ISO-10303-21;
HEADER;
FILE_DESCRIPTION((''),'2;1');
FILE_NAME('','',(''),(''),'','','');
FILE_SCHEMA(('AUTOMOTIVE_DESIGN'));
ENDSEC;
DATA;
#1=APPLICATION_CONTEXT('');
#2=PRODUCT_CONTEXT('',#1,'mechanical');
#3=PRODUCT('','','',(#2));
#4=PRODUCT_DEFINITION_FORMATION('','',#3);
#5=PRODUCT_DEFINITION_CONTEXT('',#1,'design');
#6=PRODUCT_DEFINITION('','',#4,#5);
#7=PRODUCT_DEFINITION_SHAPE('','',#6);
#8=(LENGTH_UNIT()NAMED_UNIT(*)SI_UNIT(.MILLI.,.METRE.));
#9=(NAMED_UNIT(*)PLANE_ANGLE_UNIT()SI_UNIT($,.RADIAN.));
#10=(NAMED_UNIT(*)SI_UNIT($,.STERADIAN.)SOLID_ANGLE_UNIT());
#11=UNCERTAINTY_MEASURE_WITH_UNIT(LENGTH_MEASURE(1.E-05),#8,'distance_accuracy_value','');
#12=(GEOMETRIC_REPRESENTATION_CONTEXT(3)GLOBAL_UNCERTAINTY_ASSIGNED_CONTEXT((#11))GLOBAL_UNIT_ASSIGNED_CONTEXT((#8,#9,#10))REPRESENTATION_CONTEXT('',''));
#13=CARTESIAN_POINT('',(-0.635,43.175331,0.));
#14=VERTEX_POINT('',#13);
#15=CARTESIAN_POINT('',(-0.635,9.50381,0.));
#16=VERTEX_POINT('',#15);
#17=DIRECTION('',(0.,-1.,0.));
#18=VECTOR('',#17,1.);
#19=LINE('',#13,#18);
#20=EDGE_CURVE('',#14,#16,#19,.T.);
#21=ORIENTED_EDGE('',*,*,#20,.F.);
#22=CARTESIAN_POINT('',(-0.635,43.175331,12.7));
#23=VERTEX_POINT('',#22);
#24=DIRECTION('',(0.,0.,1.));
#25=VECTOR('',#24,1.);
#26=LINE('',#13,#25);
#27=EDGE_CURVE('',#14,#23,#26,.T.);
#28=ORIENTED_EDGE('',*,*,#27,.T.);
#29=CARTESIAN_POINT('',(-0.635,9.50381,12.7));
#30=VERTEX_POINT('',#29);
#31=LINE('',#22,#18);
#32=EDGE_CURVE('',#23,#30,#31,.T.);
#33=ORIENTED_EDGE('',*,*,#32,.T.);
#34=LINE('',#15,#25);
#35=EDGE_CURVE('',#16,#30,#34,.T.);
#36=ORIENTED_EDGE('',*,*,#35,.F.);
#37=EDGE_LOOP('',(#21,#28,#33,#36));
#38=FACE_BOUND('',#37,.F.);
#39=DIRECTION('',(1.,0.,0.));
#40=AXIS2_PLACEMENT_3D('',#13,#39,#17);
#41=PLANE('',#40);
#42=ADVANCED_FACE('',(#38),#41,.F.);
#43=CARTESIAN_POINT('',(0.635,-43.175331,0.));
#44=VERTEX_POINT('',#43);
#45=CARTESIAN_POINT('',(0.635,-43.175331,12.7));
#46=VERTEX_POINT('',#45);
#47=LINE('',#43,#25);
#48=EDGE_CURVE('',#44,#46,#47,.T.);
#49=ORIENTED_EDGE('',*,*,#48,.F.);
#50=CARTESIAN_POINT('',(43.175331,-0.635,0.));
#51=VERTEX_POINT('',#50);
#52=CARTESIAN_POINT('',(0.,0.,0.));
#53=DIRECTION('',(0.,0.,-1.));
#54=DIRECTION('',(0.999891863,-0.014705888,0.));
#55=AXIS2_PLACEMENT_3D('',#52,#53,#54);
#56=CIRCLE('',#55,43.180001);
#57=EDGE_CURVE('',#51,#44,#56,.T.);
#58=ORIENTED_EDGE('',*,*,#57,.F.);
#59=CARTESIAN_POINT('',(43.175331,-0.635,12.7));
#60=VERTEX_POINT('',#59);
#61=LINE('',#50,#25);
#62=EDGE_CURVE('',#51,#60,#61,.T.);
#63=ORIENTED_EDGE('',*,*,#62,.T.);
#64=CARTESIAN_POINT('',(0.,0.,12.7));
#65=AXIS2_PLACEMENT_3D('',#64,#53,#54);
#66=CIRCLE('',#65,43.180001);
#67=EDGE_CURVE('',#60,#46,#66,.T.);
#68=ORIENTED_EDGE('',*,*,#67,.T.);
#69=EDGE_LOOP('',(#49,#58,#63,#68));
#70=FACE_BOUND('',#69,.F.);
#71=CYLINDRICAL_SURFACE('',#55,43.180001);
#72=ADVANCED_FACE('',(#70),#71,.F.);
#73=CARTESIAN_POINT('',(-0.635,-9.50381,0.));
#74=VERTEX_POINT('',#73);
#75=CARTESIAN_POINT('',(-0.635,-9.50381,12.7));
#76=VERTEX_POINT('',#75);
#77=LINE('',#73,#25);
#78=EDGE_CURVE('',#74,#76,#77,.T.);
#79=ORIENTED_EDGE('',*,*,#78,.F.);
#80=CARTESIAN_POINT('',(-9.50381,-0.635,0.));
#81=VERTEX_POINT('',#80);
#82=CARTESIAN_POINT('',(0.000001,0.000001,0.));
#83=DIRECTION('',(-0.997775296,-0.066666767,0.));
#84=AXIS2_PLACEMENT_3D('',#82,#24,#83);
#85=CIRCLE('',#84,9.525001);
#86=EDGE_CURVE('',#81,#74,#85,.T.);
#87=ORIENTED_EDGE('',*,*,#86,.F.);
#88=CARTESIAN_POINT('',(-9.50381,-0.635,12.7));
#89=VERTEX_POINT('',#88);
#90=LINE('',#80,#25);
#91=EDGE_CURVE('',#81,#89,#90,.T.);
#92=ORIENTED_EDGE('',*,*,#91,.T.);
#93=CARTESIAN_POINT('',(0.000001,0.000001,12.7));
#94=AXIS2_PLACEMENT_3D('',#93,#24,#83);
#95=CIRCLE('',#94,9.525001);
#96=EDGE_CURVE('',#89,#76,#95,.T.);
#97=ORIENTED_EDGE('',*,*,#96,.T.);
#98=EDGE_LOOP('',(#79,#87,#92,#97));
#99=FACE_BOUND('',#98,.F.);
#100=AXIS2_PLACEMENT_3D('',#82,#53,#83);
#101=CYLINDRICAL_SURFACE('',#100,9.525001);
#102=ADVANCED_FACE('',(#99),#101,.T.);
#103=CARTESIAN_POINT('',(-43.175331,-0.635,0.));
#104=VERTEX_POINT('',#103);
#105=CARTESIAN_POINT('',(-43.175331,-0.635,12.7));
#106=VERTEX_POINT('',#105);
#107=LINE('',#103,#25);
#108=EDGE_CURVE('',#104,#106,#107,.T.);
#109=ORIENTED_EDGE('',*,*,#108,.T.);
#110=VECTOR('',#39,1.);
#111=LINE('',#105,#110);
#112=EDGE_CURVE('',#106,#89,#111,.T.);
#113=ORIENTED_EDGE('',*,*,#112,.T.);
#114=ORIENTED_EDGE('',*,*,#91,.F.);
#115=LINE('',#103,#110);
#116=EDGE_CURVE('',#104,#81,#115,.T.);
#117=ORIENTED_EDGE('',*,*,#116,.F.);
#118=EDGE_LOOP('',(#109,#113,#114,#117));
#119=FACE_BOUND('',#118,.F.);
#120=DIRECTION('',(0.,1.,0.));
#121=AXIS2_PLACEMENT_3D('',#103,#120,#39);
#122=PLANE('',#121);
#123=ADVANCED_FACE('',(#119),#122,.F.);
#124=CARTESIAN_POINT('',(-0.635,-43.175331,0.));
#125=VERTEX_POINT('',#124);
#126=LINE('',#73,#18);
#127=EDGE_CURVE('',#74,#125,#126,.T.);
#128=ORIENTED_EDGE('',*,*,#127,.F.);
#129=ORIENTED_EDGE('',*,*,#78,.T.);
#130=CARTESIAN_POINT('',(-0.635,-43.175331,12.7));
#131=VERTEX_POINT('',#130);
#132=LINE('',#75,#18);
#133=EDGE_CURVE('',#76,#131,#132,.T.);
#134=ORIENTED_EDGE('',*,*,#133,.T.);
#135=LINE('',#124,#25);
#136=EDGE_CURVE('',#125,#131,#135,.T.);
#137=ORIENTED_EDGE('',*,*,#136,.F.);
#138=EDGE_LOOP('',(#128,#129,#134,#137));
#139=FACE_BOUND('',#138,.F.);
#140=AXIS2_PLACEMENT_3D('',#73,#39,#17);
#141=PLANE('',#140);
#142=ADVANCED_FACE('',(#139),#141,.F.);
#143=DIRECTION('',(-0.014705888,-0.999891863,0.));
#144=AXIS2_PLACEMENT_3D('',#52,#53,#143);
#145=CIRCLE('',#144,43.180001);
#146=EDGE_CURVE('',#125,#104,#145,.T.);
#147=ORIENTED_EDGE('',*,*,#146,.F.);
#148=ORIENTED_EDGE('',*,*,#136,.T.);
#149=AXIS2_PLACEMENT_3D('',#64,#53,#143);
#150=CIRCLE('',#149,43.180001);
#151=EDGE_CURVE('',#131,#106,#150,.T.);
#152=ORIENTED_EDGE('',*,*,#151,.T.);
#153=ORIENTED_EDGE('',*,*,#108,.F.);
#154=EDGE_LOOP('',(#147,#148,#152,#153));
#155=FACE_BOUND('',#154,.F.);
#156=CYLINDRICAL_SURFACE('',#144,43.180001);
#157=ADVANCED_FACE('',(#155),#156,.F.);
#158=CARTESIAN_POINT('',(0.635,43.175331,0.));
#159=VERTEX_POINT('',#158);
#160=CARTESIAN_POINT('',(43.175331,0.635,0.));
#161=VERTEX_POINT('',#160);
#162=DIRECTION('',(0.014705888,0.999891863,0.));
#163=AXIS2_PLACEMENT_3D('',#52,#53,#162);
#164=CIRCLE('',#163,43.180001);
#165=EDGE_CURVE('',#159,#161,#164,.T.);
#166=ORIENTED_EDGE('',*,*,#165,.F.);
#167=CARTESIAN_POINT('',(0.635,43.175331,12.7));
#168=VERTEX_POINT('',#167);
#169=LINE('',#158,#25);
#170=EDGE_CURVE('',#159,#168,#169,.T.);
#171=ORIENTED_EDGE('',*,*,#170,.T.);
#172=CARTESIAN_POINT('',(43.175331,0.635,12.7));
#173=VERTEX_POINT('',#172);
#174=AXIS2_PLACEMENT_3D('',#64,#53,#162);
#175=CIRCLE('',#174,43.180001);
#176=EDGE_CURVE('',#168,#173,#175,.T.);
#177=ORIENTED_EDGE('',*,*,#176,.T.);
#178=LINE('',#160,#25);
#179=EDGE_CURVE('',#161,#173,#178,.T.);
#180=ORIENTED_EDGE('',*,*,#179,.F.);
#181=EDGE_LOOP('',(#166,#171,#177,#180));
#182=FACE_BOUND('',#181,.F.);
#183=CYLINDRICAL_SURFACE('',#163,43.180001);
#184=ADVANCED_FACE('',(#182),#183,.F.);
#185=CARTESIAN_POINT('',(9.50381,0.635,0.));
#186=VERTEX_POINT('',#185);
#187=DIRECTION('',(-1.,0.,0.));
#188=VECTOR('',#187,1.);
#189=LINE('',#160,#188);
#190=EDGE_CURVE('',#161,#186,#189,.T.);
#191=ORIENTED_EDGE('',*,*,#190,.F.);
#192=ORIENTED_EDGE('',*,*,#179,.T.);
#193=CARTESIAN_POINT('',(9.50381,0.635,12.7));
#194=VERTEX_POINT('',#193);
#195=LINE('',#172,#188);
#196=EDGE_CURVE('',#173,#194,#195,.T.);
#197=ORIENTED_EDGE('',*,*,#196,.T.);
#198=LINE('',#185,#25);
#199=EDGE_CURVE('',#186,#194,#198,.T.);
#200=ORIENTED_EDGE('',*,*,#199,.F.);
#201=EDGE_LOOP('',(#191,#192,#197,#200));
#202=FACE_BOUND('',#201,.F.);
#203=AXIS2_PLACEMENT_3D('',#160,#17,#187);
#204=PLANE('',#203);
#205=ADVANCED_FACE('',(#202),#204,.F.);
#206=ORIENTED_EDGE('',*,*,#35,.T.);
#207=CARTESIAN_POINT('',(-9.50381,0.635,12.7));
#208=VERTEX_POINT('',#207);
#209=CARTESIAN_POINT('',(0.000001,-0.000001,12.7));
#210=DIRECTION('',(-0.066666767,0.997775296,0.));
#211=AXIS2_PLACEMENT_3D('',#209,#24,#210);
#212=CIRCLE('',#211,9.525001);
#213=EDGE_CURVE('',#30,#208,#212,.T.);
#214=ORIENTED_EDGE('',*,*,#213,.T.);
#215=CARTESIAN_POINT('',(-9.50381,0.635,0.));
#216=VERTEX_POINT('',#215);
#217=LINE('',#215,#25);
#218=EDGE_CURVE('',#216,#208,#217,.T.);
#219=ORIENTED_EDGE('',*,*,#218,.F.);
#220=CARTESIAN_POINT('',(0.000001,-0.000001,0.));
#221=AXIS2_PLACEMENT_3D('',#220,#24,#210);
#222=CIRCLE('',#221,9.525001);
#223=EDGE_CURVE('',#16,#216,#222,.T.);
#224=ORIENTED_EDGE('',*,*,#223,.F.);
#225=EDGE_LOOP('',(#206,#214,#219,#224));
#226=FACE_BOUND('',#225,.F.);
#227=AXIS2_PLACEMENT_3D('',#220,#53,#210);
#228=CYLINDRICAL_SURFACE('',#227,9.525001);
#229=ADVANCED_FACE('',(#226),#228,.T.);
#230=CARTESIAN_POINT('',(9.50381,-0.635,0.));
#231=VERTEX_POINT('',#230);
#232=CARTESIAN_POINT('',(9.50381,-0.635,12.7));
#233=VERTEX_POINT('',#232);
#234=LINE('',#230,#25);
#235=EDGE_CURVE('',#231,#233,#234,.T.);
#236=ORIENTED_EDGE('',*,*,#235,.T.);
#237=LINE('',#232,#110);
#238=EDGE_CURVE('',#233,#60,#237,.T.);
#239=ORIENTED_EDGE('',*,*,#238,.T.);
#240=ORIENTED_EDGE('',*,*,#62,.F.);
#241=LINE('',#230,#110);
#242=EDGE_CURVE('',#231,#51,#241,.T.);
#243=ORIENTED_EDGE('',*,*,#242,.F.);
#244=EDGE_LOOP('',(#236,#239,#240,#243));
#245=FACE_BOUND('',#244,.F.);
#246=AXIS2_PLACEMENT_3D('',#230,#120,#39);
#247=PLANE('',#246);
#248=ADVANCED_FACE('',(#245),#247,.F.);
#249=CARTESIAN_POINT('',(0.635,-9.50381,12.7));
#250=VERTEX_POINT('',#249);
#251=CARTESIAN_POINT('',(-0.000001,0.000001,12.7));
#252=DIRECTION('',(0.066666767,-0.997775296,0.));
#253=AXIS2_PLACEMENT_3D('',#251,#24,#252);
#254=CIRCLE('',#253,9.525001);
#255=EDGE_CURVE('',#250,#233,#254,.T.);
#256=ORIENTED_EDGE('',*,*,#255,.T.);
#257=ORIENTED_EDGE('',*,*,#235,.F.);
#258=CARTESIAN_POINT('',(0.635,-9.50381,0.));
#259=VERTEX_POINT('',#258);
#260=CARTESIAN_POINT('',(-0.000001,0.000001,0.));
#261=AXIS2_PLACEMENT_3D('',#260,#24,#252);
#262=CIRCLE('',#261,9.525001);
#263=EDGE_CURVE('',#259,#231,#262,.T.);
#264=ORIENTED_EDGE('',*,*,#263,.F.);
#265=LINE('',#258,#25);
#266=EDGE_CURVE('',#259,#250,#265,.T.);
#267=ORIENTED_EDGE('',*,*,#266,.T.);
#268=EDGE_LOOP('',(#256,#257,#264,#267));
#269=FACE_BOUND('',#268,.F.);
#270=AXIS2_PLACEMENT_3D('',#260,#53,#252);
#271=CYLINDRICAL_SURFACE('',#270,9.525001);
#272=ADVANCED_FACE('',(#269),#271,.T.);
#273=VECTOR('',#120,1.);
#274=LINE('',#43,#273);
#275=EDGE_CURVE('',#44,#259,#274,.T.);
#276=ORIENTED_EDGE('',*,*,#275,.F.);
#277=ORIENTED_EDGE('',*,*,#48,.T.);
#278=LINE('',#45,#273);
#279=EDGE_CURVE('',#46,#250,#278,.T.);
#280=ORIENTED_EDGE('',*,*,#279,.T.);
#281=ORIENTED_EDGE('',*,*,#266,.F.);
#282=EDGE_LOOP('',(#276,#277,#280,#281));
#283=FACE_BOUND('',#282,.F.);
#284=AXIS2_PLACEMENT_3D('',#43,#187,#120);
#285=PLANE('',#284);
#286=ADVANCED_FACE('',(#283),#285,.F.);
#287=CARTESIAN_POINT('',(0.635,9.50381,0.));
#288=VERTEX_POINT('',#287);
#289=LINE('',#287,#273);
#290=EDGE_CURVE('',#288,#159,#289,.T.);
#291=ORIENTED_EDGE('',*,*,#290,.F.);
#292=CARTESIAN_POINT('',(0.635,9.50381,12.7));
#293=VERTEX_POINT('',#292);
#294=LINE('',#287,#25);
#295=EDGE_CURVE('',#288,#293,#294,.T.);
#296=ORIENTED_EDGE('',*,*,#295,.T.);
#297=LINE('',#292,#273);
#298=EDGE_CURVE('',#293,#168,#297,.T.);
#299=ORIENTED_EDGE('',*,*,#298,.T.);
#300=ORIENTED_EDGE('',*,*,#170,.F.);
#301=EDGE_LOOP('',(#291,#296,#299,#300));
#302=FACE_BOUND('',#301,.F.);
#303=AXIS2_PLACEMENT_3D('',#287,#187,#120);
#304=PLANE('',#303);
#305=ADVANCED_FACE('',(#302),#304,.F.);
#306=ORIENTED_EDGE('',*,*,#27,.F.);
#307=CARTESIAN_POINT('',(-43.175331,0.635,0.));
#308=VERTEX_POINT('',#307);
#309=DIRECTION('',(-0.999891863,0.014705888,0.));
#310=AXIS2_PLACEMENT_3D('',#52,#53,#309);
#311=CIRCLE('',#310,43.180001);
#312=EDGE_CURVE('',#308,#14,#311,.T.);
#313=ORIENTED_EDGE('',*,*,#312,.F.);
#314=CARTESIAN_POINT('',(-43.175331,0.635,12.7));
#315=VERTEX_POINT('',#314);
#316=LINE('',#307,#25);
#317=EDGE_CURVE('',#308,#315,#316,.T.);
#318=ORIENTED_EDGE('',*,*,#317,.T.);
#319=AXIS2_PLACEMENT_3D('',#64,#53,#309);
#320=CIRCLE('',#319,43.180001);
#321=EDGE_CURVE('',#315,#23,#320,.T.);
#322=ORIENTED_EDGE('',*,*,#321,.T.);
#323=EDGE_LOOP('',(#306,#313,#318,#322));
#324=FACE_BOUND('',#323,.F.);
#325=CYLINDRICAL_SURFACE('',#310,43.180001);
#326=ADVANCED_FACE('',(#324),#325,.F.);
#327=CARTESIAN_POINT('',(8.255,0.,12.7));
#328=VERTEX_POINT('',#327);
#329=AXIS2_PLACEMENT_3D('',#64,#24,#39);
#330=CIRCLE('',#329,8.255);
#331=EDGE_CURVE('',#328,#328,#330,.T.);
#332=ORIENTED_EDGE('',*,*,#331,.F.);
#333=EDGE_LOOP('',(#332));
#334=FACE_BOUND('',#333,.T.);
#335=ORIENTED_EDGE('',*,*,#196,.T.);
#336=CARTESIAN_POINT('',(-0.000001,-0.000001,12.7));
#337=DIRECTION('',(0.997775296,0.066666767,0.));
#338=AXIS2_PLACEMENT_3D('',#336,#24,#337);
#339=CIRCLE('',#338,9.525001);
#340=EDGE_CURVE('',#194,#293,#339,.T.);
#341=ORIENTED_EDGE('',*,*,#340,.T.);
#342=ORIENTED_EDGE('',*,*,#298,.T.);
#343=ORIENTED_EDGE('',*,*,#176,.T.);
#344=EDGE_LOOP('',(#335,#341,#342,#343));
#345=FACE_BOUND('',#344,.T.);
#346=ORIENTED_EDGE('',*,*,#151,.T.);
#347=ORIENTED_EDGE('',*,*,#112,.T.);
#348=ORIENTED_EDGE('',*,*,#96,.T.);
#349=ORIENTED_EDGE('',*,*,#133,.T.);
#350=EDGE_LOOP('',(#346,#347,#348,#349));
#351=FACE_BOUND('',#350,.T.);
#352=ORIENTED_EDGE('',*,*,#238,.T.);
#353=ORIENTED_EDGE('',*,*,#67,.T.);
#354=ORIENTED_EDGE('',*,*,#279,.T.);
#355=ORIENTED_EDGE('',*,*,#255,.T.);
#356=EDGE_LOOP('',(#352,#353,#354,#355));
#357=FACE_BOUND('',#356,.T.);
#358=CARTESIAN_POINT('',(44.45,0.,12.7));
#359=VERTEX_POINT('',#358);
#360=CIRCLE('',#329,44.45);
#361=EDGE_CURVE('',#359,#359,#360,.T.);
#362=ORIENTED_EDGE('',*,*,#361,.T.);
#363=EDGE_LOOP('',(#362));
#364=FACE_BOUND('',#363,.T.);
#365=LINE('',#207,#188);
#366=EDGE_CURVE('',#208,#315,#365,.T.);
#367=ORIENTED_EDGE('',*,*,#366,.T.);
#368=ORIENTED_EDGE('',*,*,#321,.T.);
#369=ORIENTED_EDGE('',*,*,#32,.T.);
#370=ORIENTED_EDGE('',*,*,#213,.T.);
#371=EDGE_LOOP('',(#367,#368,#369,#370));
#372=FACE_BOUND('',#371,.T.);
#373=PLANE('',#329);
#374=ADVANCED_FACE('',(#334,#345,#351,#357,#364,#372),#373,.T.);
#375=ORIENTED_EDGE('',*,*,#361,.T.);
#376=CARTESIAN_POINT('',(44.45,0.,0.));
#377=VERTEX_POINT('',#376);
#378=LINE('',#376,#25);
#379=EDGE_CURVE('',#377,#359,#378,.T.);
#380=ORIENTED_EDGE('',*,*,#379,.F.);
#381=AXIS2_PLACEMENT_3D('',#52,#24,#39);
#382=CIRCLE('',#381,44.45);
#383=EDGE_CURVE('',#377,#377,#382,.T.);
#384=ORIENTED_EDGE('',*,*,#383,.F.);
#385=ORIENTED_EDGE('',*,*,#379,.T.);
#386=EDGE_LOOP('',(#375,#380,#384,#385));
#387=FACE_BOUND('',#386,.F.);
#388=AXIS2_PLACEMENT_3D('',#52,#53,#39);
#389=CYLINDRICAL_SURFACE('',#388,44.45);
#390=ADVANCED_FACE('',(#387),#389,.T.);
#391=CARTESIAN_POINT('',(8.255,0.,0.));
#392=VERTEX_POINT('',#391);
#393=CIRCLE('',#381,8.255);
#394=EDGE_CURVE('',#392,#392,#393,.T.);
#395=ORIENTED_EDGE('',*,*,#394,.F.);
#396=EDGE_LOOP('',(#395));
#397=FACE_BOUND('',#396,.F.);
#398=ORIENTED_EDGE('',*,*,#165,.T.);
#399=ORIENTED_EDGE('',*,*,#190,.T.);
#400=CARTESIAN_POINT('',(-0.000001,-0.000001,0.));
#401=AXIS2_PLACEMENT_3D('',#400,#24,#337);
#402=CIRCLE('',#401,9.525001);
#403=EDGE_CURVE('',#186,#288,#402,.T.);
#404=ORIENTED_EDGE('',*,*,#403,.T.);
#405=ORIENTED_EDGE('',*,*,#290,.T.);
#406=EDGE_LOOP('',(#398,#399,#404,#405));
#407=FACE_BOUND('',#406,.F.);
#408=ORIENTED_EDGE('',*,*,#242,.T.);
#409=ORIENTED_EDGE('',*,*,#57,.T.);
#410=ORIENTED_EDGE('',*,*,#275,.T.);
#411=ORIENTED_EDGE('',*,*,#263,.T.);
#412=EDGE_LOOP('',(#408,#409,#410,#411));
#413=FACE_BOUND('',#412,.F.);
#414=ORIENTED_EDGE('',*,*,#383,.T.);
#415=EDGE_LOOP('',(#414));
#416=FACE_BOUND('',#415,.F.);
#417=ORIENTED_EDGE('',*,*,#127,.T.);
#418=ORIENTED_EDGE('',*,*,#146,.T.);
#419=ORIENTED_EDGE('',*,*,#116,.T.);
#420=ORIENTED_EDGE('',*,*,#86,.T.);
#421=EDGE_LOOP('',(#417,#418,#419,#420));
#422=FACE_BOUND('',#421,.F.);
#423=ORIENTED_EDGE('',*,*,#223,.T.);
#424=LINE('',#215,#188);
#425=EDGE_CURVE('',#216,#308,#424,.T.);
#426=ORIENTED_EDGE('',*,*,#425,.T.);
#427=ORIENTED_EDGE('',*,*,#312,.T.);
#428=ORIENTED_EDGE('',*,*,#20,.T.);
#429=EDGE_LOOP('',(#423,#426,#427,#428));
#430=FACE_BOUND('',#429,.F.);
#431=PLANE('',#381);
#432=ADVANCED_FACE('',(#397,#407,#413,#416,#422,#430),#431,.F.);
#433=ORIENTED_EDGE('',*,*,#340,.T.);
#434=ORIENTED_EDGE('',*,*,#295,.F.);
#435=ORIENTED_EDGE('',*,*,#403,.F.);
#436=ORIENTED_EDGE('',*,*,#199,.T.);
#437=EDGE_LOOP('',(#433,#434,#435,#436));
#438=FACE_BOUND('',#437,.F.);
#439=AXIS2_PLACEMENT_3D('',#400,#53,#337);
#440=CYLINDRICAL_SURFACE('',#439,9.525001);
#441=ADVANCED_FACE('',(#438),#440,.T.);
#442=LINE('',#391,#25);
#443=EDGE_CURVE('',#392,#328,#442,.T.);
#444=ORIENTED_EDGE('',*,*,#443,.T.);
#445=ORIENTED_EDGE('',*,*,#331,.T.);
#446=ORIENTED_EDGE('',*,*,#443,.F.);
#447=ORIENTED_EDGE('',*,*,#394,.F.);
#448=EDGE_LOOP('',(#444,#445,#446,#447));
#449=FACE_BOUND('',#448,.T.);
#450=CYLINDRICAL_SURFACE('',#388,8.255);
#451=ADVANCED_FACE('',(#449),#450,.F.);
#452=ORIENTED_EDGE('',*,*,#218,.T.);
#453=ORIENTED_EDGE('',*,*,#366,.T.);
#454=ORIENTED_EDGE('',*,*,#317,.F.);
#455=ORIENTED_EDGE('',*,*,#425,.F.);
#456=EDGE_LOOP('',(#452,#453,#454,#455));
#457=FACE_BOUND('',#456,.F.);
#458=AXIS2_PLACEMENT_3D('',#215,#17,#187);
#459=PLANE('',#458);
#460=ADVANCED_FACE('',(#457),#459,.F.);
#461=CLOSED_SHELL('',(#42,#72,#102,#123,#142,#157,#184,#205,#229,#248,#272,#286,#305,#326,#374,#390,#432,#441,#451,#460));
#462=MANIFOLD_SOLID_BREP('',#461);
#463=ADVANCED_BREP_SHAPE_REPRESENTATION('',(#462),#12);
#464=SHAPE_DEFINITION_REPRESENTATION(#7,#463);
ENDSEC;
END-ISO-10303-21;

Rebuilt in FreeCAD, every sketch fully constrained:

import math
import FreeCAD as App
import Part
import Sketcher

V = App.Vector
Q = App.Units.Quantity

doc = App.newDocument("Part")
body = doc.addObject("PartDesign::Body", "Body")

# Sketch on XY plane
sketch1 = body.newObject("Sketcher::SketchObject", "Sketch")
sketch1.AttachmentSupport = (doc.getObject("XY_Plane"), [""])
sketch1.MapMode = "FlatFace"
sketch1.addGeometry([
    Part.Circle(V(0, 0, 0), V(0, 0, 1), 44.45),  # 0
    Part.LineSegment(V(-0.635, -9.50381, 0), V(-0.635, -43.175331, 0)),  # 1
    Part.ArcOfCircle(Part.Circle(V(0, 0, 0), V(0, 0, 1), 43.180001), math.radians(-179.157384), math.radians(-90.842616)),  # 2
    Part.LineSegment(V(-43.175331, -0.635, 0), V(-9.50381, -0.635, 0)),  # 3
    Part.ArcOfCircle(Part.Circle(V(0.000001, 0.000001, 0), V(0, 0, 1), 9.525001), math.radians(-176.177441), math.radians(-93.822559)),  # 4
    Part.LineSegment(V(0.635, -43.175331, 0), V(0.635, -9.50381, 0)),  # 5
    Part.ArcOfCircle(Part.Circle(V(-0.000001, 0.000001, 0), V(0, 0, 1), 9.525001), math.radians(-86.177441), math.radians(-3.822559)),  # 6
    Part.LineSegment(V(9.50381, -0.635, 0), V(43.175331, -0.635, 0)),  # 7
    Part.ArcOfCircle(Part.Circle(V(0, 0, 0), V(0, 0, 1), 43.180001), math.radians(-89.157384), math.radians(-0.842616)),  # 8
    Part.LineSegment(V(-9.50381, 0.635, 0), V(-43.175331, 0.635, 0)),  # 9
    Part.ArcOfCircle(Part.Circle(V(0, 0, 0), V(0, 0, 1), 43.180001), math.radians(90.842616), math.radians(179.157384)),  # 10
    Part.LineSegment(V(-0.635, 43.175331, 0), V(-0.635, 9.50381, 0)),  # 11
    Part.ArcOfCircle(Part.Circle(V(0.000001, -0.000001, 0), V(0, 0, 1), 9.525001), math.radians(93.822559), math.radians(176.177441)),  # 12
    Part.Circle(V(0, 0, 0), V(0, 0, 1), 8.255),  # 13
    Part.ArcOfCircle(Part.Circle(V(0, 0, 0), V(0, 0, 1), 43.180001), math.radians(0.842616), math.radians(89.157384)),  # 14
    Part.LineSegment(V(43.175331, 0.635, 0), V(9.50381, 0.635, 0)),  # 15
    Part.ArcOfCircle(Part.Circle(V(-0.000001, -0.000001, 0), V(0, 0, 1), 9.525001), math.radians(3.822559), math.radians(86.177441)),  # 16
    Part.LineSegment(V(0.635, 9.50381, 0), V(0.635, 43.175331, 0)),  # 17
], False)
sketch1.addConstraint([
    Sketcher.Constraint("Coincident", 1, 2, 2, 2),
    Sketcher.Constraint("Coincident", 2, 1, 3, 1),
    Sketcher.Constraint("Coincident", 3, 2, 4, 1),
    Sketcher.Constraint("Coincident", 4, 2, 1, 1),
    Sketcher.Constraint("Coincident", 5, 2, 6, 1),
    Sketcher.Constraint("Coincident", 6, 2, 7, 1),
    Sketcher.Constraint("Coincident", 7, 2, 8, 2),
    Sketcher.Constraint("Coincident", 8, 1, 5, 1),
    Sketcher.Constraint("Coincident", 9, 2, 10, 2),
    Sketcher.Constraint("Coincident", 10, 1, 11, 1),
    Sketcher.Constraint("Coincident", 11, 2, 12, 1),
    Sketcher.Constraint("Coincident", 12, 2, 9, 1),
    Sketcher.Constraint("Coincident", 14, 1, 15, 1),
    Sketcher.Constraint("Coincident", 15, 2, 16, 1),
    Sketcher.Constraint("Coincident", 16, 2, 17, 1),
    Sketcher.Constraint("Coincident", 17, 2, 14, 2),
    Sketcher.Constraint("Vertical", 1),
    Sketcher.Constraint("Horizontal", 3),
    Sketcher.Constraint("Vertical", 5),
    Sketcher.Constraint("Horizontal", 7),
    Sketcher.Constraint("Horizontal", 9),
    Sketcher.Constraint("Vertical", 11),
    Sketcher.Constraint("Horizontal", 15),
    Sketcher.Constraint("Vertical", 17),
    Sketcher.Constraint("Coincident", 0, 3, -1, 1),
    Sketcher.Constraint("Coincident", 2, 3, -1, 1),
    Sketcher.Constraint("Coincident", 4, 3, -1, 1),
    Sketcher.Constraint("Coincident", 6, 3, -1, 1),
    Sketcher.Constraint("Coincident", 8, 3, -1, 1),
    Sketcher.Constraint("Coincident", 10, 3, -1, 1),
    Sketcher.Constraint("Coincident", 12, 3, -1, 1),
    Sketcher.Constraint("Coincident", 13, 3, -1, 1),
    Sketcher.Constraint("Coincident", 14, 3, -1, 1),
    Sketcher.Constraint("Coincident", 16, 3, -1, 1),
    Sketcher.Constraint("Equal", 4, 6),
    Sketcher.Constraint("Equal", 2, 8),
    Sketcher.Constraint("Equal", 8, 10),
    Sketcher.Constraint("Equal", 6, 12),
    Sketcher.Constraint("Equal", 10, 14),
    Sketcher.Constraint("Equal", 12, 16),
    Sketcher.Constraint("Horizontal", 4, 2, 5, 2),
    Sketcher.Constraint("Horizontal", 3, 2, 6, 2),
    Sketcher.Constraint("Horizontal", 12, 2, 14, 1),
    Sketcher.Constraint("Horizontal", 11, 2, 16, 2),
    Sketcher.Constraint("Vertical", 2, 1, 9, 2),
    Sketcher.Constraint("Vertical", 4, 2, 10, 1),
    Sketcher.Constraint("Equal", 15, 1),
    Sketcher.Constraint("Diameter", 0, Q("3.5 in")),
    Sketcher.Constraint("Radius", 2, Q("1.7 in")),
    Sketcher.Constraint("Diameter", 13, Q("0.65 in")),
    Sketcher.Constraint("Radius", 4, Q("0.3750001 in")),
    Sketcher.Constraint("DistanceX", 4, 2, 5, 2, Q("0.05 in")),
])
pad1 = body.newObject("PartDesign::Pad", "Pad")
pad1.Profile = sketch1
pad1.Length = Q("0.5 in")

doc.recompute()
